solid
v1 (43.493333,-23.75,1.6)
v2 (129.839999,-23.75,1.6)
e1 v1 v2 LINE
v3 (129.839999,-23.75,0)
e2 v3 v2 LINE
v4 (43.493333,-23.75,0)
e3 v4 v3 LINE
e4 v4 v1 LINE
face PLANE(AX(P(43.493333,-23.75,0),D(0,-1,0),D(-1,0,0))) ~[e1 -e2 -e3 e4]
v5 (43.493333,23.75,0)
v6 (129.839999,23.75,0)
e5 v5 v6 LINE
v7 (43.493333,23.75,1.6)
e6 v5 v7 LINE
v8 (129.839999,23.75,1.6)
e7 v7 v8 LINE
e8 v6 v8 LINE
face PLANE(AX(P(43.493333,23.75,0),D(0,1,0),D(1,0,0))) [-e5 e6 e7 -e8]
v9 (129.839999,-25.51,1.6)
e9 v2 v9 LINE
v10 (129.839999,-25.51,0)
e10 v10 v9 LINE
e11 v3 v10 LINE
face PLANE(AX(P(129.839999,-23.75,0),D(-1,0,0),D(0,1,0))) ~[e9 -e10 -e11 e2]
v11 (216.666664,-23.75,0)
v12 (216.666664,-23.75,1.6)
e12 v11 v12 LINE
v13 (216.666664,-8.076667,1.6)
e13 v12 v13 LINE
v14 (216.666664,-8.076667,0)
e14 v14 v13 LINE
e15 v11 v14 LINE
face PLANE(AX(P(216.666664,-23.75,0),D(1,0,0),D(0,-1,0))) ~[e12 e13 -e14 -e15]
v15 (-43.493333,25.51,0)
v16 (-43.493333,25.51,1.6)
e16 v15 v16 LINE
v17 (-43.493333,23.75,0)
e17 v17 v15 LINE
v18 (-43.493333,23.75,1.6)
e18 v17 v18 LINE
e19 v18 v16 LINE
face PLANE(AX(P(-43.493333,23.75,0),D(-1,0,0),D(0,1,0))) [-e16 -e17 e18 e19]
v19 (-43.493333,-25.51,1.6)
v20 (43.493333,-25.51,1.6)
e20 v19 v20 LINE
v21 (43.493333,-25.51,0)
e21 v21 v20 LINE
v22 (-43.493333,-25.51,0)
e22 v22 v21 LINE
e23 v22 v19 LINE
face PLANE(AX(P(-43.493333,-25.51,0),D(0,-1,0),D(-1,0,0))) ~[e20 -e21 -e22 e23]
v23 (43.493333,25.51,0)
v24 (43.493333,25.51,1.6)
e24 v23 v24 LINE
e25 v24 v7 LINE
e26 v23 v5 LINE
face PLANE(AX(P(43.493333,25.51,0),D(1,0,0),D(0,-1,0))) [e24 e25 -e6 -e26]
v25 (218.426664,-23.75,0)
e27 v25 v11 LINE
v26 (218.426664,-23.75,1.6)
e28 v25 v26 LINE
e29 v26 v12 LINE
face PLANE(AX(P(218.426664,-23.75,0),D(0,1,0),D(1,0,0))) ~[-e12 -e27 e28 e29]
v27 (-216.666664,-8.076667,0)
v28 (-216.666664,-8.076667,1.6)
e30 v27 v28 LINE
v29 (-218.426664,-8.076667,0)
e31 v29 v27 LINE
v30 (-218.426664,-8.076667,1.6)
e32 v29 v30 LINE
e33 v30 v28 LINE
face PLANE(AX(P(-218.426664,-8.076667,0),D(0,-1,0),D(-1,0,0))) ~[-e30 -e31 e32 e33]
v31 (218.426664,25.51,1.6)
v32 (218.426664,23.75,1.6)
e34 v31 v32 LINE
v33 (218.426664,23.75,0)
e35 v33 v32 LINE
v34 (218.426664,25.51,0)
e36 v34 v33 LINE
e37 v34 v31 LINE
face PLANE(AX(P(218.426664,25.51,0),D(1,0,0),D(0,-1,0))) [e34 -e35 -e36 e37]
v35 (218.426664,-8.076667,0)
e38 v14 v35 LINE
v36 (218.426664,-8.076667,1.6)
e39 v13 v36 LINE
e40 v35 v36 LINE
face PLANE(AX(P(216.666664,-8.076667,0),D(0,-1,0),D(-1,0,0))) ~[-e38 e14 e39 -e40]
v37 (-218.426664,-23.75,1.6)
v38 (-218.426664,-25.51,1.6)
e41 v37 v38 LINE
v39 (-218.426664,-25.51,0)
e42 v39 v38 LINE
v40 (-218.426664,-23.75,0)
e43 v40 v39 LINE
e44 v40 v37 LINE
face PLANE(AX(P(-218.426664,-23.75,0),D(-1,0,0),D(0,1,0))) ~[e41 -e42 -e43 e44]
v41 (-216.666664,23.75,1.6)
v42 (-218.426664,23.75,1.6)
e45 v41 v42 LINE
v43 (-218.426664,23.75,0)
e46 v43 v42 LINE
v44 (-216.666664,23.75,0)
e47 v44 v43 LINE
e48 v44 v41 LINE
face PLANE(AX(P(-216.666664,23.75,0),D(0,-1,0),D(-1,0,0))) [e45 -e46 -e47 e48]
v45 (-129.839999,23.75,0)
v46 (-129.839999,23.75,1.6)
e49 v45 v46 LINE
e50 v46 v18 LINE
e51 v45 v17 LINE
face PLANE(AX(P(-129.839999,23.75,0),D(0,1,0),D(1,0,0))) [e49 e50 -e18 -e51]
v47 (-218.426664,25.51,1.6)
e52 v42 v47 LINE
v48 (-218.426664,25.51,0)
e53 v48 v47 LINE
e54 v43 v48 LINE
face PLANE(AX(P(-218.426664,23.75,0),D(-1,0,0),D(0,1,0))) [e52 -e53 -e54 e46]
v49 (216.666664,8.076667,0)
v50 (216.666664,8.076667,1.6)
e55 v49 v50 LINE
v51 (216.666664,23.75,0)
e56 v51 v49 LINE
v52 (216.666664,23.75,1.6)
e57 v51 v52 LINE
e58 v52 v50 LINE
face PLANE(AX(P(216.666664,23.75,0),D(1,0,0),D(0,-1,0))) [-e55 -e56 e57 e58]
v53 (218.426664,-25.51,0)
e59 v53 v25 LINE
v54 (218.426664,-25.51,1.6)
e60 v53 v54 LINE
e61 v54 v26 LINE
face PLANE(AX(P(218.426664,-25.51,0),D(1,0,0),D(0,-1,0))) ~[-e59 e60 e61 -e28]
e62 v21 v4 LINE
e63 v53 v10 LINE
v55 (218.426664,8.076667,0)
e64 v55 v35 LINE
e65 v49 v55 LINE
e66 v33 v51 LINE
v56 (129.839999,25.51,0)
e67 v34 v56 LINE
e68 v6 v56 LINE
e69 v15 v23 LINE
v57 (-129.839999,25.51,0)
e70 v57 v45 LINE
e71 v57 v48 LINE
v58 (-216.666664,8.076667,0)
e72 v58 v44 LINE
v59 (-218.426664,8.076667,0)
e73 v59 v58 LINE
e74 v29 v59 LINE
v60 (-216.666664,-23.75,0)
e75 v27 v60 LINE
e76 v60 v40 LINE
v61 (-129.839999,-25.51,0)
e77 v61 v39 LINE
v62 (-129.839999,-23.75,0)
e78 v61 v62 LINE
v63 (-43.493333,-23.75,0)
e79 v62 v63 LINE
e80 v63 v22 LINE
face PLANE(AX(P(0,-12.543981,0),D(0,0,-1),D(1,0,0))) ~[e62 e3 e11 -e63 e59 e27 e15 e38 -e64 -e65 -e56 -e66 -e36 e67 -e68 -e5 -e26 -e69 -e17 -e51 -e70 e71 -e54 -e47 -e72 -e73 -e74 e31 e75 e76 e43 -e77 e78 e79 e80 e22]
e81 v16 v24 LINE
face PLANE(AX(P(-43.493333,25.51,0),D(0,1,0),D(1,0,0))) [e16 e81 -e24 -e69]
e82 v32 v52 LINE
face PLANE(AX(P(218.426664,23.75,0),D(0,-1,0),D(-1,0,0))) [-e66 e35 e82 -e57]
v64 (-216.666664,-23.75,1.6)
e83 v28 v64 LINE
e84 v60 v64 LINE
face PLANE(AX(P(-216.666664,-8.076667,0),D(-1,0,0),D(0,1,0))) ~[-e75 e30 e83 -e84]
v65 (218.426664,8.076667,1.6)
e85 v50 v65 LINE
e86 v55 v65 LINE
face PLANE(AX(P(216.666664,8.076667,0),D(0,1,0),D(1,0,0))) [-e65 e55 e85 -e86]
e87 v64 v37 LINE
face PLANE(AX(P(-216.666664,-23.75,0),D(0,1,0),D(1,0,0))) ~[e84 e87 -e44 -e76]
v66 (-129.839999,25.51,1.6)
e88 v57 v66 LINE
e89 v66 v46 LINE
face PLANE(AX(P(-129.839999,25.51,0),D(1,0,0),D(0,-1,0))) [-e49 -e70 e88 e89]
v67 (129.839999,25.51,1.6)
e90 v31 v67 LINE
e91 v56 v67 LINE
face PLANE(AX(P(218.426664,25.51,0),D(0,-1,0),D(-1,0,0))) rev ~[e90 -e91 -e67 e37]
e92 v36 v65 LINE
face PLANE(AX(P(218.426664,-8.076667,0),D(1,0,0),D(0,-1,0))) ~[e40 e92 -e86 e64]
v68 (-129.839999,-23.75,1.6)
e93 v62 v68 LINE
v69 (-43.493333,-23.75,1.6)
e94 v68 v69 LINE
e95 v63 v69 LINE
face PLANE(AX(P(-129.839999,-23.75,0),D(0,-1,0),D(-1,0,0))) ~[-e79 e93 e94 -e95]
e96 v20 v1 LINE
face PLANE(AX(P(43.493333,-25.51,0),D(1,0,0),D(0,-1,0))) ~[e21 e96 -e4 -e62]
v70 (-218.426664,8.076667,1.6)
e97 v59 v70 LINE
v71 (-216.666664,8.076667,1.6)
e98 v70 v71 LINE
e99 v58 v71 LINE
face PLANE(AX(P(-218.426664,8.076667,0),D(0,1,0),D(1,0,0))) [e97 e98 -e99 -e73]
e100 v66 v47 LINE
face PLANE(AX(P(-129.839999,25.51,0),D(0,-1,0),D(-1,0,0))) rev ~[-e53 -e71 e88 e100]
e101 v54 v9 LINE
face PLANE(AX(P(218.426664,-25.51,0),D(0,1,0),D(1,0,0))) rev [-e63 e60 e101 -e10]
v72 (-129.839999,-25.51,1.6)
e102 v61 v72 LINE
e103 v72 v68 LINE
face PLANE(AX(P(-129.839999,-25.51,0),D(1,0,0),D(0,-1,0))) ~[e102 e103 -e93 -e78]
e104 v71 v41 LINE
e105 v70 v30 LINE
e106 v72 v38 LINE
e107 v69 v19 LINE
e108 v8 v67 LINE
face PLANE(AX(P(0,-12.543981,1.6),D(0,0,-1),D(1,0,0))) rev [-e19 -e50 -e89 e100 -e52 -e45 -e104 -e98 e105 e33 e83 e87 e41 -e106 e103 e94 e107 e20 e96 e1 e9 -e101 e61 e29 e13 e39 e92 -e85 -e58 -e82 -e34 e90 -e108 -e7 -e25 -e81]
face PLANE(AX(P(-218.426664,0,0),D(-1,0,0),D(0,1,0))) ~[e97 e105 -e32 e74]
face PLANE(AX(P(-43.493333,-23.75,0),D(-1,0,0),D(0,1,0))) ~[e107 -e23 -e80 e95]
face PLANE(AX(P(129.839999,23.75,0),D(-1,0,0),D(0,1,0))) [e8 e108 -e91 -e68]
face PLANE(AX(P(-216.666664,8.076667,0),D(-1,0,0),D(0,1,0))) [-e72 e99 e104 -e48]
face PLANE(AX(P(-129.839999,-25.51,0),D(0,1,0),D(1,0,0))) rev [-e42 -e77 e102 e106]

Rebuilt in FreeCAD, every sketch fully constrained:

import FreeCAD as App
import Part
import Sketcher
from FreeCAD import Vector
Q = App.Units.Quantity


def add_polygon(sketch, points):
    """Adds a closed chain of lines whose ends are joined by coincident constraints."""
    first, n = sketch.GeometryCount, len(points)
    for a, b in zip(points, points[1:] + points[:1]):
        sketch.addGeometry(Part.LineSegment(App.Vector(*a, 0), App.Vector(*b, 0)), False)
    for i in range(n):
        sketch.addConstraint(Sketcher.Constraint("Coincident", first + i, 2, first + (i + 1) % n, 1))

doc = App.newDocument("Part")
body = doc.addObject("PartDesign::Body", "Body")

# Sketch on XY plane
sketch1 = body.newObject("Sketcher::SketchObject", "Sketch")
sketch1.AttachmentSupport = (doc.getObject("XY_Plane"), [""])
sketch1.MapMode = "FlatFace"
add_polygon(sketch1, [(-129.8, 25.5), (-218.4, 25.5), (-218.4, 23.8), (-216.7, 23.8), (-216.7, 8.1), (-218.4, 8.1), (-218.4, 0), (218.4, 0), (218.4, 8.1), (216.7, 8.1), (216.7, 23.8), (218.4, 23.8), (218.4, 25.5), (129.8, 25.5), (129.8, 23.8), (43.5, 23.8), (43.5, 25.5), (-43.5, 25.5), (-43.5, 23.8), (-129.8, 23.8)])  # lines 0-19
sketch1.addConstraint(Sketcher.Constraint("Horizontal", 0))
sketch1.addConstraint(Sketcher.Constraint("Vertical", 1))
sketch1.addConstraint(Sketcher.Constraint("Horizontal", 2))
sketch1.addConstraint(Sketcher.Constraint("Vertical", 3))
sketch1.addConstraint(Sketcher.Constraint("Horizontal", 4))
sketch1.addConstraint(Sketcher.Constraint("Vertical", 5))
sketch1.addConstraint(Sketcher.Constraint("Horizontal", 6))
sketch1.addConstraint(Sketcher.Constraint("Vertical", 7))
sketch1.addConstraint(Sketcher.Constraint("Horizontal", 8))
sketch1.addConstraint(Sketcher.Constraint("Vertical", 9))
sketch1.addConstraint(Sketcher.Constraint("Horizontal", 10))
sketch1.addConstraint(Sketcher.Constraint("Vertical", 11))
sketch1.addConstraint(Sketcher.Constraint("Horizontal", 12))
sketch1.addConstraint(Sketcher.Constraint("Vertical", 13))
sketch1.addConstraint(Sketcher.Constraint("Horizontal", 14))
sketch1.addConstraint(Sketcher.Constraint("Vertical", 15))
sketch1.addConstraint(Sketcher.Constraint("Horizontal", 16))
sketch1.addConstraint(Sketcher.Constraint("Vertical", 17))
sketch1.addConstraint(Sketcher.Constraint("Horizontal", 18))
sketch1.addConstraint(Sketcher.Constraint("Vertical", 19))
sketch1.addConstraint(Sketcher.Constraint("Symmetric", 5, 2, 6, 2, -1, 1))
sketch1.addConstraint(Sketcher.Constraint("Symmetric", 3, 2, 8, 2, -2))
sketch1.addConstraint(Sketcher.Constraint("Symmetric", 1, 2, 10, 2, -2))
sketch1.addConstraint(Sketcher.Constraint("Symmetric", 14, 2, 17, 2, -2))
sketch1.addConstraint(Sketcher.Constraint("Symmetric", 12, 2, 19, 2, -2))
sketch1.addConstraint(Sketcher.Constraint("Horizontal", 10, 2, 13, 2))
sketch1.addConstraint(Sketcher.Constraint("Horizontal", 12, 2, 15, 2))
sketch1.addConstraint(Sketcher.Constraint("Vertical", 1, 2, 4, 2))
sketch1.addConstraint(Sketcher.Constraint("Equal", 10, 1))
sketch1.addConstraint(Sketcher.Constraint("DistanceX", 2, 1, 2, 2, Q("1.76 mm")))
sketch1.addConstraint(Sketcher.Constraint("DistanceY", -1, 1, 0, 2, Q("25.51 mm")))
sketch1.addConstraint(Sketcher.Constraint("DistanceX", -1, 1, 12, 2, Q("129.839999 mm")))
sketch1.addConstraint(Sketcher.Constraint("DistanceX", 6, 1, 6, 2, Q("436.853329 mm")))
sketch1.addConstraint(Sketcher.Constraint("DistanceX", 14, 2, 14, 1, Q("86.346666 mm")))
sketch1.addConstraint(Sketcher.Constraint("DistanceY", 3, 2, 3, 1, Q("15.673333 mm")))
pad1 = body.newObject("PartDesign::Pad", "Pad")
pad1.Profile = sketch1
pad1.Length = 1.6
doc.recompute()

mirrored = body.newObject("PartDesign::Mirrored", "Mirrored")
mirrored.Originals = [pad1]
mirrored.MirrorPlane = (doc.getObject("XZ_Plane"), [""])
body.Tip = mirrored

doc.recompute()
